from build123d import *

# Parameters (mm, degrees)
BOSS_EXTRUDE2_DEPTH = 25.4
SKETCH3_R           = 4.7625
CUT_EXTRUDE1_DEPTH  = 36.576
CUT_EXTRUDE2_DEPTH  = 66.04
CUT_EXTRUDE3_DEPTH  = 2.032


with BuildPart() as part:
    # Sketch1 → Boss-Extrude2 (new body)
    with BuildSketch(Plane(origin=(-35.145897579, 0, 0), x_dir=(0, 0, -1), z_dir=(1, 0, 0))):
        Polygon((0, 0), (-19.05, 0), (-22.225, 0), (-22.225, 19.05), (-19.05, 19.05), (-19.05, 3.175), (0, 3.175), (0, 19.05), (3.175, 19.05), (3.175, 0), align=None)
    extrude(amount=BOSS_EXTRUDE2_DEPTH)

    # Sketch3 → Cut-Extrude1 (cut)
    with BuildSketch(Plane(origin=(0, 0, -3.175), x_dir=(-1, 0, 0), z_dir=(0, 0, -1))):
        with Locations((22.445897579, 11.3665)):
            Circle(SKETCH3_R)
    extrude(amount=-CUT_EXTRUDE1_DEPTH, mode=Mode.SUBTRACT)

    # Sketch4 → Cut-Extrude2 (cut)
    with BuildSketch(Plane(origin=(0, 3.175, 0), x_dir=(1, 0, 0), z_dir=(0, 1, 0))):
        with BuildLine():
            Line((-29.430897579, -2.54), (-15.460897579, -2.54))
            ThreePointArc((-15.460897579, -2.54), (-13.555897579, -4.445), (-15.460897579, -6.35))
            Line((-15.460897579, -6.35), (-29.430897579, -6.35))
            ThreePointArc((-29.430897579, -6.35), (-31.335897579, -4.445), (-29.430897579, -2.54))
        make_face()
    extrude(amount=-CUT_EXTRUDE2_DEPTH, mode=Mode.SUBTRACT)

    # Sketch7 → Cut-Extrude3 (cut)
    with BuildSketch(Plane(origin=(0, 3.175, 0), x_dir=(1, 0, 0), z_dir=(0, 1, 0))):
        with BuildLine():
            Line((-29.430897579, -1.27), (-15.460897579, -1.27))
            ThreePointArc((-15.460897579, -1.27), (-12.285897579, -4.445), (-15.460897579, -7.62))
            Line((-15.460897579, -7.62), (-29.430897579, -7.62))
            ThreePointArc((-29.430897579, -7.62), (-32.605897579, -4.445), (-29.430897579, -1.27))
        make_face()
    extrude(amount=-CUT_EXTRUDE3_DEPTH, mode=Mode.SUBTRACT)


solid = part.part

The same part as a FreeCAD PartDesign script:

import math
import FreeCAD as App
import Part
import Sketcher

V = App.Vector
Q = App.Units.Quantity


def add_polygon(sketch, points):
    """Adds a closed chain of lines whose ends are joined by coincident constraints."""
    first, n = sketch.GeometryCount, len(points)
    for a, b in zip(points, points[1:] + points[:1]):
        sketch.addGeometry(Part.LineSegment(App.Vector(*a, 0), App.Vector(*b, 0)), False)
    for i in range(n):
        sketch.addConstraint(Sketcher.Constraint("Coincident", first + i, 2, first + (i + 1) % n, 1))

doc = App.newDocument("Part")
body = doc.addObject("PartDesign::Body", "Body")

# Sketch on YZ plane
sketch1 = doc.addObject("Sketcher::SketchObject", "Sketch")
body.addObject(sketch1)
sketch1.AttachmentSupport = (doc.YZ_Plane, [""])
sketch1.MapMode = "FlatFace"
sketch1.AttachmentOffset = App.Placement(V(0, 0, -35.145898), App.Rotation())
add_polygon(sketch1, [(0, 22.2), (0, -3.2), (19.1, -3.2), (19.1, 0), (3.2, 0), (3.2, 19.1), (19.1, 19.1), (19.1, 22.2)])  # lines 0-7
sketch1.addConstraint([
    Sketcher.Constraint("Vertical", 0),
    Sketcher.Constraint("Horizontal", 1),
    Sketcher.Constraint("Vertical", 2),
    Sketcher.Constraint("Horizontal", 3),
    Sketcher.Constraint("Vertical", 4),
    Sketcher.Constraint("Horizontal", 5),
    Sketcher.Constraint("Vertical", 6),
    Sketcher.Constraint("Horizontal", 7),
    Sketcher.Constraint("PointOnObject", 0, 2, -2),
    Sketcher.Constraint("PointOnObject", 2, 2, -1),
    Sketcher.Constraint("Vertical", 2, 2, 5, 2),
    Sketcher.Constraint("Equal", 7, 4),
    Sketcher.Constraint("Equal", 2, 6),
    Sketcher.Constraint("DistanceY", 0, 2, 0, 1, Q("1 in")),
    Sketcher.Constraint("DistanceX", 1, 1, 1, 2, Q("0.75 in")),
    Sketcher.Constraint("DistanceX", 3, 2, 3, 1, Q("0.625 in")),
])
pad1 = doc.addObject("PartDesign::Pad", "Pad")
body.addObject(pad1)
pad1.Profile = sketch1
pad1.Length = Q("1 in")

# Sketch on XY plane
sketch2 = doc.addObject("Sketcher::SketchObject", "Sketch001")
body.addObject(sketch2)
sketch2.AttachmentSupport = (doc.XY_Plane, [""])
sketch2.MapMode = "FlatFace"
sketch2.AttachmentOffset = App.Placement(V(0, 0, -0.125 * 25.4), App.Rotation())
sketch2.addGeometry(Part.Circle(V(-22.4, 11.4, 0), V(0, 0, 1), 4.8), False)
sketch2.addConstraint([
    Sketcher.Constraint("Diameter", 0, Q("0.375 in")),
    Sketcher.Constraint("DistanceY", -1, 1, 0, 3, Q("0.4475 in")),
    Sketcher.Constraint("DistanceX", 0, 3, -1, 1, 22.445898),
])
pocket1 = doc.addObject("PartDesign::Pocket", "Pocket")
body.addObject(pocket1)
pocket1.Profile = sketch2
pocket1.Length = Q("1.44 in")
pocket1.Reversed = True

# Sketch on XZ plane
sketch3 = doc.addObject("Sketcher::SketchObject", "Sketch002")
body.addObject(sketch3)
sketch3.AttachmentSupport = (doc.XZ_Plane, [""])
sketch3.MapMode = "FlatFace"
sketch3.AttachmentOffset = App.Placement(V(0, 0, -0.125 * 25.4), App.Rotation())
sketch3.addGeometry([
    Part.LineSegment(V(-15.5, 2.5, 0), V(-29.4, 2.5, 0)),
    Part.ArcOfCircle(Part.Circle(V(-29.4, 4.4, 0), V(0, 0, 1), 1.9), math.radians(90), math.radians(270)),
    Part.LineSegment(V(-29.4, 6.3, 0), V(-15.5, 6.3, 0)),
    Part.ArcOfCircle(Part.Circle(V(-15.5, 4.4, 0), V(0, 0, 1), 1.9), math.radians(-90), math.radians(90)),
], False)
sketch3.addConstraint([
    Sketcher.Constraint("Tangent", 0, 2, 1, 2),
    Sketcher.Constraint("Tangent", 1, 1, 2, 1),
    Sketcher.Constraint("Tangent", 2, 2, 3, 2),
    Sketcher.Constraint("Tangent", 3, 1, 0, 1),
    Sketcher.Constraint("Horizontal", 0),
    Sketcher.Constraint("Horizontal", 2),
    Sketcher.Constraint("Radius", 1, Q("0.075 in")),
    Sketcher.Constraint("DistanceX", 0, 2, 0, 1, Q("0.55 in")),
    Sketcher.Constraint("DistanceY", -1, 1, 0, 2, Q("0.1 in")),
    Sketcher.Constraint("DistanceX", 1, 3, -1, 1, 29.430898),
])
pocket2 = doc.addObject("PartDesign::Pocket", "Pocket001")
body.addObject(pocket2)
pocket2.Profile = sketch3
pocket2.Length = Q("2.6 in")
pocket2.Reversed = True

# Sketch on XZ plane
sketch4 = doc.addObject("Sketcher::SketchObject", "Sketch003")
body.addObject(sketch4)
sketch4.AttachmentSupport = (doc.XZ_Plane, [""])
sketch4.MapMode = "FlatFace"
sketch4.AttachmentOffset = App.Placement(V(0, 0, -0.125 * 25.4), App.Rotation())
sketch4.addGeometry([
    Part.LineSegment(V(-15.5, 1.3, 0), V(-29.4, 1.3, 0)),
    Part.ArcOfCircle(Part.Circle(V(-29.4, 4.4, 0), V(0, 0, 1), 3.2), math.radians(90), math.radians(270)),
    Part.LineSegment(V(-29.4, 7.6, 0), V(-15.5, 7.6, 0)),
    Part.ArcOfCircle(Part.Circle(V(-15.5, 4.4, 0), V(0, 0, 1), 3.2), math.radians(-90), math.radians(90)),
], False)
sketch4.addConstraint([
    Sketcher.Constraint("Tangent", 0, 2, 1, 2),
    Sketcher.Constraint("Tangent", 1, 1, 2, 1),
    Sketcher.Constraint("Tangent", 2, 2, 3, 2),
    Sketcher.Constraint("Tangent", 3, 1, 0, 1),
    Sketcher.Constraint("Horizontal", 0),
    Sketcher.Constraint("Horizontal", 2),
    Sketcher.Constraint("Radius", 1, Q("0.125 in")),
    Sketcher.Constraint("DistanceX", 0, 2, 0, 1, Q("0.55 in")),
    Sketcher.Constraint("DistanceY", -1, 1, 1, 1, Q("0.3 in")),
    Sketcher.Constraint("DistanceX", 1, 3, -1, 1, 29.430898),
])
pocket3 = doc.addObject("PartDesign::Pocket", "Pocket002")
body.addObject(pocket3)
pocket3.Profile = sketch4
pocket3.Length = Q("0.08 in")
pocket3.Reversed = True

doc.recompute()
